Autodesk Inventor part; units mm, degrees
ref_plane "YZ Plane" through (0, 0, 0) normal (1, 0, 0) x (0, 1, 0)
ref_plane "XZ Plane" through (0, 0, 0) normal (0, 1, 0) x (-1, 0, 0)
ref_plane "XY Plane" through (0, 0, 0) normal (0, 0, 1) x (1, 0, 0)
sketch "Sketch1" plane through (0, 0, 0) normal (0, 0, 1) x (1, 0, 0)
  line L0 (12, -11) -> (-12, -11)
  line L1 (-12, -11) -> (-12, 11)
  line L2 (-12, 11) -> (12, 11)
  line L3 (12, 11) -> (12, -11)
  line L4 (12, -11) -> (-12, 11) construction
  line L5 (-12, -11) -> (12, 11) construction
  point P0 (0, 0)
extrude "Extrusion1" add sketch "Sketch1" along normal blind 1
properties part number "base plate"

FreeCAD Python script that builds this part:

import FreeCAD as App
import Part
import Sketcher
from FreeCAD import Vector
Q = App.Units.Quantity

doc = App.newDocument("Part")
body = doc.addObject("PartDesign::Body", "Body")

# Sketch on XY plane
sketch1 = body.newObject("Sketcher::SketchObject", "Sketch")
sketch1.AttachmentSupport = (doc.getObject("XY_Plane"), [""])
sketch1.MapMode = "FlatFace"
sketch1.addGeometry([
    Part.LineSegment(Vector(-12, -11, 0), Vector(12, -11, 0)),
    Part.LineSegment(Vector(12, -11, 0), Vector(12, 11, 0)),
    Part.LineSegment(Vector(12, 11, 0), Vector(-12, 11, 0)),
    Part.LineSegment(Vector(-12, 11, 0), Vector(-12, -11, 0)),
], False)
sketch1.addConstraint([
    Sketcher.Constraint("Coincident", 0, 2, 1, 1),
    Sketcher.Constraint("Coincident", 1, 2, 2, 1),
    Sketcher.Constraint("Coincident", 2, 2, 3, 1),
    Sketcher.Constraint("Coincident", 3, 2, 0, 1),
    Sketcher.Constraint("Horizontal", 0),
    Sketcher.Constraint("Vertical", 1),
    Sketcher.Constraint("Horizontal", 2),
    Sketcher.Constraint("Vertical", 3),
    Sketcher.Constraint("Symmetric", 0, 2, 2, 2, -1, 1),
    Sketcher.Constraint("DistanceX", 0, 1, 0, 2, Q("24 mm")),
    Sketcher.Constraint("DistanceY", 1, 1, 1, 2, Q("22 mm")),
])
pad1 = body.newObject("PartDesign::Pad", "Pad")
pad1.Profile = sketch1
pad1.Length = 1

doc.recompute()
